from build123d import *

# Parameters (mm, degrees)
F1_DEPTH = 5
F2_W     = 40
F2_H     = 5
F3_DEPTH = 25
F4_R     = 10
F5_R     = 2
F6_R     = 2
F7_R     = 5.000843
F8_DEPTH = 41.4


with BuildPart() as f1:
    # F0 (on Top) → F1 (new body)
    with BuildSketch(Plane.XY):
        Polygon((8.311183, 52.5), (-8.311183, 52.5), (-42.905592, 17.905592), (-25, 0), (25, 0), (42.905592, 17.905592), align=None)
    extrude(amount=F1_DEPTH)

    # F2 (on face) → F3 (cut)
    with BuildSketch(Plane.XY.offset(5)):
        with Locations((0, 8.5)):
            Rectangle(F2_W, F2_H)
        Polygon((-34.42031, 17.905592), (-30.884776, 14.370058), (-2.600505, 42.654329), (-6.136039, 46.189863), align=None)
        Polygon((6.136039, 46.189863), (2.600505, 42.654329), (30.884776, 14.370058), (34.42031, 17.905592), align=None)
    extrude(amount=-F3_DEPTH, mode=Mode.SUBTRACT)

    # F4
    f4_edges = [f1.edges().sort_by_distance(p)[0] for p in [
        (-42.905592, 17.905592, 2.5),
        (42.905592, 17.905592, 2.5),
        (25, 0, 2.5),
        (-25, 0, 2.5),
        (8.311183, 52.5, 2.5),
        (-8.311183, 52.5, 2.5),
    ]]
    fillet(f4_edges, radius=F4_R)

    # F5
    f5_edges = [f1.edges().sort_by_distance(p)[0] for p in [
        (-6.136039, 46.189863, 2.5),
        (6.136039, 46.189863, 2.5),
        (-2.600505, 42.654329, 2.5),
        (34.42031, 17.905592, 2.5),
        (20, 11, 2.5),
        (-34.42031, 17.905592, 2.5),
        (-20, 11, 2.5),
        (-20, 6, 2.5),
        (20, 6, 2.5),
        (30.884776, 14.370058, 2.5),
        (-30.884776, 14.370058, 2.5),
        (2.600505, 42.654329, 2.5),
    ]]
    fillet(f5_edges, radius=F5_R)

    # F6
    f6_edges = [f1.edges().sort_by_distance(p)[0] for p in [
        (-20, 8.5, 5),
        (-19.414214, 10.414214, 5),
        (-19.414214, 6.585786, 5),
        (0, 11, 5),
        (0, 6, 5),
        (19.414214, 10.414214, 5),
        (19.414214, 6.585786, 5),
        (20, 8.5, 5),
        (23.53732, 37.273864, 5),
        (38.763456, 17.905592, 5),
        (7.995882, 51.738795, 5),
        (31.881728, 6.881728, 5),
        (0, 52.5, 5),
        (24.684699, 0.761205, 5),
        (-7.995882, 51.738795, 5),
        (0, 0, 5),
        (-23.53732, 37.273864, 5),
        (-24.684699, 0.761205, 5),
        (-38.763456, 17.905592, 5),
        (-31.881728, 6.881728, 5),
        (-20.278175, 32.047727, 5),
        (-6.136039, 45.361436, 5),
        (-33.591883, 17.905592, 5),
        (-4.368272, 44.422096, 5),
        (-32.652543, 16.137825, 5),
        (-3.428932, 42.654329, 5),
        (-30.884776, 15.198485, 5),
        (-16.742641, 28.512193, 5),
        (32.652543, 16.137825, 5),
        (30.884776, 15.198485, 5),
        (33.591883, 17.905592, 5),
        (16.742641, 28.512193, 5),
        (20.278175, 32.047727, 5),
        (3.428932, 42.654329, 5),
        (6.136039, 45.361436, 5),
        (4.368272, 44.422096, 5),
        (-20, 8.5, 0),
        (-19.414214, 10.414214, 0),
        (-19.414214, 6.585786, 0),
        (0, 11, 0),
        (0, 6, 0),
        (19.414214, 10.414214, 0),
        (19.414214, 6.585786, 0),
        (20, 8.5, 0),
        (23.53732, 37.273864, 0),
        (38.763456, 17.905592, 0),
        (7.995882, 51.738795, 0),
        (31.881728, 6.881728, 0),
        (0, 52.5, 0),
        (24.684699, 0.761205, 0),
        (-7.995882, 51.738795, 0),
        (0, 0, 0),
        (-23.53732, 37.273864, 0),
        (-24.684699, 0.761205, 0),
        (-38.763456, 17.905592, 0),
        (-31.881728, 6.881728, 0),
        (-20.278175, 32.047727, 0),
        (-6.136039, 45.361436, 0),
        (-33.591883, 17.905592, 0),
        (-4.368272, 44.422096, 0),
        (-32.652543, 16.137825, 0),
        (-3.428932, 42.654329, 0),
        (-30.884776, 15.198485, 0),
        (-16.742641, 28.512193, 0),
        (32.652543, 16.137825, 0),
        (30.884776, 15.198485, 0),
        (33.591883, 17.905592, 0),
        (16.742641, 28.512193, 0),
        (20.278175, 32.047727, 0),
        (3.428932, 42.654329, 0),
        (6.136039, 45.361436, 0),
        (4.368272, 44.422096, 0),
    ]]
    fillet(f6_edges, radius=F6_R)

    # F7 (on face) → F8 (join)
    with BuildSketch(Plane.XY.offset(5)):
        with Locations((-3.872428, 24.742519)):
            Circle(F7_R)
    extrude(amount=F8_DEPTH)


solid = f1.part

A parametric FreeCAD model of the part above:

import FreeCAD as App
import Part
import Sketcher

V = App.Vector
Q = App.Units.Quantity


def edges_at(feature, points):
    """Names of the edges that pass closest to the given points."""
    edges = feature.Shape.Edges
    near = lambda p: min(range(len(edges)), key=lambda i: edges[i].distToShape(Part.Vertex(*p))[0])
    return sorted({f"Edge{near(p) + 1}" for p in points})

doc = App.newDocument("Part")
body = doc.addObject("PartDesign::Body", "Body")

sketch1 = body.newObject("Sketcher::SketchObject", "Sketch")
sketch1.AttachmentSupport = (doc.getObject("XY_Plane"), [""])
sketch1.MapMode = "FlatFace"
sketch1.addGeometry([
    Part.LineSegment(V(8, 52, 0), V(-8, 52, 0)),
    Part.LineSegment(V(-8, 52, 0), V(-43, 18, 0)),
    Part.LineSegment(V(-43, 18, 0), V(-25, 0, 0)),
    Part.LineSegment(V(-25, 0, 0), V(25, 0, 0)),
    Part.LineSegment(V(25, 0, 0), V(43, 18, 0)),
    Part.LineSegment(V(43, 18, 0), V(8, 52, 0)),
], False)
sketch1.addConstraint([
    Sketcher.Constraint("Coincident", 0, 2, 1, 1),
    Sketcher.Constraint("Coincident", 1, 2, 2, 1),
    Sketcher.Constraint("Coincident", 2, 2, 3, 1),
    Sketcher.Constraint("Coincident", 3, 2, 4, 1),
    Sketcher.Constraint("Coincident", 4, 2, 5, 1),
    Sketcher.Constraint("Coincident", 5, 2, 0, 1),
    Sketcher.Constraint("Horizontal", 0),
    Sketcher.Constraint("Horizontal", 3),
    Sketcher.Constraint("Symmetric", 2, 2, 3, 2, -1, 1),
    Sketcher.Constraint("Symmetric", 1, 2, 4, 2, -2),
    Sketcher.Constraint("Perpendicular", 1, 2),
    Sketcher.Constraint("Perpendicular", 2, 4),
    Sketcher.Constraint("Perpendicular", 4, 5),
    Sketcher.Constraint("DistanceX", 3, 1, 3, 2, Q("50 mm")),
    Sketcher.Constraint("DistanceY", -1, 1, 0, 2, Q("52.5 mm")),
    Sketcher.Constraint("Distance", 1, Q("48.923882 mm")),
])
pad1 = body.newObject("PartDesign::Pad", "Pad")
pad1.Profile = sketch1
pad1.Length = 5

sketch2 = body.newObject("Sketcher::SketchObject", "Sketch001")
sketch2.AttachmentSupport = (doc.getObject("XY_Plane"), [""])
sketch2.MapMode = "FlatFace"
sketch2.AttachmentOffset = App.Placement(V(0, 0, 5), App.Rotation())
sketch2.addGeometry([
    Part.LineSegment(V(-20, 11, 0), V(-20, 6, 0)),
    Part.LineSegment(V(-20, 6, 0), V(20, 6, 0)),
    Part.LineSegment(V(20, 6, 0), V(20, 11, 0)),
    Part.LineSegment(V(20, 11, 0), V(-20, 11, 0)),
    Part.LineSegment(V(-34, 18, 0), V(-31, 14, 0)),
    Part.LineSegment(V(-31, 14, 0), V(-3, 43, 0)),
    Part.LineSegment(V(-3, 43, 0), V(-6, 46, 0)),
    Part.LineSegment(V(-6, 46, 0), V(-34, 18, 0)),
    Part.LineSegment(V(6, 46, 0), V(3, 43, 0)),
    Part.LineSegment(V(3, 43, 0), V(31, 14, 0)),
    Part.LineSegment(V(31, 14, 0), V(34, 18, 0)),
    Part.LineSegment(V(34, 18, 0), V(6, 46, 0)),
], False)
sketch2.addConstraint([
    Sketcher.Constraint("Coincident", 0, 2, 1, 1),
    Sketcher.Constraint("Coincident", 1, 2, 2, 1),
    Sketcher.Constraint("Coincident", 2, 2, 3, 1),
    Sketcher.Constraint("Coincident", 3, 2, 0, 1),
    Sketcher.Constraint("Coincident", 4, 2, 5, 1),
    Sketcher.Constraint("Coincident", 5, 2, 6, 1),
    Sketcher.Constraint("Coincident", 6, 2, 7, 1),
    Sketcher.Constraint("Coincident", 7, 2, 4, 1),
    Sketcher.Constraint("Coincident", 8, 2, 9, 1),
    Sketcher.Constraint("Coincident", 9, 2, 10, 1),
    Sketcher.Constraint("Coincident", 10, 2, 11, 1),
    Sketcher.Constraint("Coincident", 11, 2, 8, 1),
    Sketcher.Constraint("Vertical", 0),
    Sketcher.Constraint("Horizontal", 1),
    Sketcher.Constraint("Vertical", 2),
    Sketcher.Constraint("Horizontal", 3),
    Sketcher.Constraint("Symmetric", 5, 2, 8, 2, -2),
    Sketcher.Constraint("Symmetric", 4, 2, 9, 2, -2),
    Sketcher.Constraint("Symmetric", 7, 2, 10, 2, -2),
    Sketcher.Constraint("Symmetric", 6, 2, 11, 2, -2),
    Sketcher.Constraint("Perpendicular", 4, 5),
    Sketcher.Constraint("Perpendicular", 5, 6),
    Sketcher.Constraint("Perpendicular", 6, 7),
    Sketcher.Constraint("Parallel", 7, 8),
    Sketcher.Constraint("DistanceX", 1, 1, 1, 2, Q("40 mm")),
    Sketcher.Constraint("DistanceY", 0, 2, 0, 1, Q("5 mm")),
    Sketcher.Constraint("Distance", 4, Q("5 mm")),
    Sketcher.Constraint("Distance", 5, Q("40 mm")),
    Sketcher.Constraint("DistanceX", 0, 2, -1, 1, Q("20 mm")),
    Sketcher.Constraint("DistanceY", -1, 1, 0, 2, Q("6 mm")),
    Sketcher.Constraint("DistanceY", -1, 1, 5, 2, Q("42.654329 mm")),
    Sketcher.Constraint("DistanceX", 6, 2, -1, 1, Q("6.136039 mm")),
])
pocket1 = body.newObject("PartDesign::Pocket", "Pocket")
pocket1.Profile = sketch2
pocket1.Length = 25
doc.recompute()

fillet = body.newObject("PartDesign::Fillet", "Fillet")
fillet.Base = (pocket1, edges_at(pocket1, [
    (-42.906, 17.906, 2.5),
    (42.906, 17.906, 2.5),
    (25, 0, 2.5),
    (-25, 0, 2.5),
    (8.311, 52.5, 2.5),
    (-8.311, 52.5, 2.5),
]))
fillet.Radius = 10
doc.recompute()

fillet2 = body.newObject("PartDesign::Fillet", "Fillet001")
fillet2.Base = (fillet, edges_at(fillet, [
    (-6.136, 46.19, 2.5),
    (6.136, 46.19, 2.5),
    (-2.601, 42.654, 2.5),
    (34.42, 17.906, 2.5),
    (20, 11, 2.5),
    (-34.42, 17.906, 2.5),
    (-20, 11, 2.5),
    (-20, 6, 2.5),
    (20, 6, 2.5),
    (30.885, 14.37, 2.5),
    (-30.885, 14.37, 2.5),
    (2.601, 42.654, 2.5),
]))
fillet2.Radius = 2
doc.recompute()

fillet3 = body.newObject("PartDesign::Fillet", "Fillet002")
fillet3.Base = (fillet2, edges_at(fillet2, [
    (-20, 8.5, 5),
    (-19.414, 10.414, 5),
    (-19.414, 6.586, 5),
    (0, 11, 5),
    (0, 6, 5),
    (19.414, 10.414, 5),
    (19.414, 6.586, 5),
    (20, 8.5, 5),
    (23.537, 37.274, 5),
    (38.763, 17.906, 5),
    (7.996, 51.739, 5),
    (31.882, 6.882, 5),
    (0, 52.5, 5),
    (24.685, 0.761, 5),
    (-7.996, 51.739, 5),
    (0, 0, 5),
    (-23.537, 37.274, 5),
    (-24.685, 0.761, 5),
    (-38.763, 17.906, 5),
    (-31.882, 6.882, 5),
    (-20.278, 32.048, 5),
    (-6.136, 45.361, 5),
    (-33.592, 17.906, 5),
    (-4.368, 44.422, 5),
    (-32.653, 16.138, 5),
    (-3.429, 42.654, 5),
    (-30.885, 15.198, 5),
    (-16.743, 28.512, 5),
    (32.653, 16.138, 5),
    (30.885, 15.198, 5),
    (33.592, 17.906, 5),
    (16.743, 28.512, 5),
    (20.278, 32.048, 5),
    (3.429, 42.654, 5),
    (6.136, 45.361, 5),
    (4.368, 44.422, 5),
    (-20, 8.5, 0),
    (-19.414, 10.414, 0),
    (-19.414, 6.586, 0),
    (0, 11, 0),
    (0, 6, 0),
    (19.414, 10.414, 0),
    (19.414, 6.586, 0),
    (20, 8.5, 0),
    (23.537, 37.274, 0),
    (38.763, 17.906, 0),
    (7.996, 51.739, 0),
    (31.882, 6.882, 0),
    (0, 52.5, 0),
    (24.685, 0.761, 0),
    (-7.996, 51.739, 0),
    (0, 0, 0),
    (-23.537, 37.274, 0),
    (-24.685, 0.761, 0),
    (-38.763, 17.906, 0),
    (-31.882, 6.882, 0),
    (-20.278, 32.048, 0),
    (-6.136, 45.361, 0),
    (-33.592, 17.906, 0),
    (-4.368, 44.422, 0),
    (-32.653, 16.138, 0),
    (-3.429, 42.654, 0),
    (-30.885, 15.198, 0),
    (-16.743, 28.512, 0),
    (32.653, 16.138, 0),
    (30.885, 15.198, 0),
    (33.592, 17.906, 0),
    (16.743, 28.512, 0),
    (20.278, 32.048, 0),
    (3.429, 42.654, 0),
    (6.136, 45.361, 0),
    (4.368, 44.422, 0),
]))
fillet3.Radius = 2

sketch3 = body.newObject("Sketcher::SketchObject", "Sketch002")
sketch3.AttachmentSupport = (doc.getObject("XY_Plane"), [""])
sketch3.MapMode = "FlatFace"
sketch3.AttachmentOffset = App.Placement(V(0, 0, 5), App.Rotation())
sketch3.addGeometry(Part.Circle(V(-4, 25, 0), V(0, 0, 1), 5), False)
sketch3.addConstraint([
    Sketcher.Constraint("Diameter", 0, Q("10.001686 mm")),
    Sketcher.Constraint("DistanceX", 0, 3, -1, 1, Q("3.872428 mm")),
    Sketcher.Constraint("DistanceY", -1, 1, 0, 3, Q("24.742519 mm")),
])
pad2 = body.newObject("PartDesign::Pad", "Pad001")
pad2.Profile = sketch3
pad2.Length = 41.4

doc.recompute()
